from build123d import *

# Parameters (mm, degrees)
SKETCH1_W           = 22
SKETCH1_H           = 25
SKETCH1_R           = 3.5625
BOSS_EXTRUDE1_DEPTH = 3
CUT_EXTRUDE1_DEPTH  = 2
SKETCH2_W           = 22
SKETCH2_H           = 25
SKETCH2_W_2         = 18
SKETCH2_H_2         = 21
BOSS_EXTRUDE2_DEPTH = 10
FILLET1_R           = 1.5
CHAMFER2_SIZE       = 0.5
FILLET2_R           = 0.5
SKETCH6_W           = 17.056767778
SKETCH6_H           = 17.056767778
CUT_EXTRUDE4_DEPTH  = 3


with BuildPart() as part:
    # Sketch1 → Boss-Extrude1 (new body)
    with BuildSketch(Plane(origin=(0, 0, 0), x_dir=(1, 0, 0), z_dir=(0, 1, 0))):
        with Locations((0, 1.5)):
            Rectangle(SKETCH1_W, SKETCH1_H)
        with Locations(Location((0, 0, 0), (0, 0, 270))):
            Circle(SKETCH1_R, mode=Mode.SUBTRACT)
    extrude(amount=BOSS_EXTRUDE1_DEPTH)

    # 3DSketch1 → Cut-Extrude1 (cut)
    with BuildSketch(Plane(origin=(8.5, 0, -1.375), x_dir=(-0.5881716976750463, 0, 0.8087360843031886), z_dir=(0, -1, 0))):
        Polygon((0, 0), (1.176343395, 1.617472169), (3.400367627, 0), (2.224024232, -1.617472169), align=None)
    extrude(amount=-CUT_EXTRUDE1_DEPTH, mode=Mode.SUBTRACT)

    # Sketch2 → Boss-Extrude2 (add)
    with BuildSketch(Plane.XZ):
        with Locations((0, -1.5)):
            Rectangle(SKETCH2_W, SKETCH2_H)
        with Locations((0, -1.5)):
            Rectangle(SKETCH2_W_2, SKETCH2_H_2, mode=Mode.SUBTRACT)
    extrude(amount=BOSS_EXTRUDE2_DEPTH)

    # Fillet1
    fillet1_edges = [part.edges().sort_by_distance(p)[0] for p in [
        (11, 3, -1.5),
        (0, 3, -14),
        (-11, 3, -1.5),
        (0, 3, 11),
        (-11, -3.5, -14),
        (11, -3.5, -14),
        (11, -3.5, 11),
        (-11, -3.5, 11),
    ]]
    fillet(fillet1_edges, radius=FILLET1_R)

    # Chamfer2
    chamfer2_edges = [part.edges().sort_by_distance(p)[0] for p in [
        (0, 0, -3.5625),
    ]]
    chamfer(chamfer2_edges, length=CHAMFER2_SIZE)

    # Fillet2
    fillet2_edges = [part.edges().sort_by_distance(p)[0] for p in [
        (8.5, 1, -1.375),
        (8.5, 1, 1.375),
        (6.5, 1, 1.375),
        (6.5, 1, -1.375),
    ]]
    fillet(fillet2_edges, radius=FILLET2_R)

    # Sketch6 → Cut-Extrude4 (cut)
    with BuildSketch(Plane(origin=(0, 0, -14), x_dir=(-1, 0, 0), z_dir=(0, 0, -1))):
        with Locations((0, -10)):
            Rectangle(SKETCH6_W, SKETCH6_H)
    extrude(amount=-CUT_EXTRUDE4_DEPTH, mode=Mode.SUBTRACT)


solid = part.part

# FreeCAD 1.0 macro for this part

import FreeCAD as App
import Part
import Sketcher

V = App.Vector
Q = App.Units.Quantity


def edges_at(feature, points):
    """Names of the edges that pass closest to the given points."""
    edges = feature.Shape.Edges
    near = lambda p: min(range(len(edges)), key=lambda i: edges[i].distToShape(Part.Vertex(*p))[0])
    return sorted({f"Edge{near(p) + 1}" for p in points})

doc = App.newDocument("Part")
params = doc.addObject("Spreadsheet::Sheet", "Params")
for row, (alias, value) in enumerate([
    ("sketch1_width", "22 mm"),
    ("sketch1_height", "25 mm"),
    ("pad1_length", "3 mm"),
    ("sketch2_width", "2 mm"),
    ("sketch2_height", "2.75 mm"),
    ("pocket1_length", "2 mm"),
    ("sketch3_width", "22 mm"),
    ("sketch3_width2", "18 mm"),
    ("sketch3_height", "25 mm"),
    ("sketch3_height2", "21 mm"),
    ("pad2_length", "10 mm"),
    ("fillet_radius", "1.5 mm"),
    ("chamfer_size", "0.5 mm"),
    ("fillet2_radius", "0.5 mm"),
    ("pocket2_length", "3 mm"),
], start=1):
    params.set(f"A{row}", alias)
    params.set(f"B{row}", "=" + value)
    params.setAlias(f"B{row}", alias)

body = doc.addObject("PartDesign::Body", "Body")

# Sketch on XZ plane
sketch1 = doc.addObject("Sketcher::SketchObject", "Sketch")
body.addObject(sketch1)
sketch1.AttachmentSupport = (doc.XZ_Plane, [""])
sketch1.MapMode = "FlatFace"
sketch1.addGeometry([
    Part.LineSegment(V(-11, -14, 0), V(-11, 11, 0)),  # 0
    Part.LineSegment(V(-11, 11, 0), V(11, 11, 0)),  # 1
    Part.LineSegment(V(11, 11, 0), V(11, -14, 0)),  # 2
    Part.LineSegment(V(11, -14, 0), V(-11, -14, 0)),  # 3
    Part.Circle(V(0, 0, 0), V(0, 0, 1), 3.6),  # 4
], False)
sketch1.addConstraint([
    Sketcher.Constraint("Coincident", 0, 2, 1, 1),
    Sketcher.Constraint("Coincident", 1, 2, 2, 1),
    Sketcher.Constraint("Coincident", 2, 2, 3, 1),
    Sketcher.Constraint("Coincident", 3, 2, 0, 1),
    Sketcher.Constraint("Vertical", 0),
    Sketcher.Constraint("Horizontal", 1),
    Sketcher.Constraint("Vertical", 2),
    Sketcher.Constraint("Horizontal", 3),
    Sketcher.Constraint("Coincident", 4, 3, -1, 1),
    Sketcher.Constraint("DistanceX", 1, 1, 1, 2, Q("22 mm")),
    Sketcher.Constraint("DistanceY", 0, 1, 0, 2, Q("25 mm")),
    Sketcher.Constraint("Diameter", 4, Q("7.125 mm")),
    Sketcher.Constraint("DistanceX", 0, 2, -1, 1, Q("11 mm")),
    Sketcher.Constraint("DistanceY", -1, 1, 0, 2, Q("11 mm")),
])
sketch1.setExpression("Constraints[9]", "Params.sketch1_width")
sketch1.setExpression("Constraints[10]", "Params.sketch1_height")
pad1 = doc.addObject("PartDesign::Pad", "Pad")
body.addObject(pad1)
pad1.Profile = sketch1
pad1.setExpression("Length", "Params.pad1_length")
pad1.Reversed = True

# Sketch on XZ plane
sketch2 = doc.addObject("Sketcher::SketchObject", "Sketch001")
body.addObject(sketch2)
sketch2.AttachmentSupport = (doc.XZ_Plane, [""])
sketch2.MapMode = "FlatFace"
sketch2.addGeometry([
    Part.LineSegment(V(6.5, -1.4, 0), V(8.5, -1.4, 0)),
    Part.LineSegment(V(8.5, -1.4, 0), V(8.5, 1.4, 0)),
    Part.LineSegment(V(8.5, 1.4, 0), V(6.5, 1.4, 0)),
    Part.LineSegment(V(6.5, 1.4, 0), V(6.5, -1.4, 0)),
], False)
sketch2.addConstraint([
    Sketcher.Constraint("Coincident", 0, 2, 1, 1),
    Sketcher.Constraint("Coincident", 1, 2, 2, 1),
    Sketcher.Constraint("Coincident", 2, 2, 3, 1),
    Sketcher.Constraint("Coincident", 3, 2, 0, 1),
    Sketcher.Constraint("Horizontal", 0),
    Sketcher.Constraint("Vertical", 1),
    Sketcher.Constraint("Horizontal", 2),
    Sketcher.Constraint("Vertical", 3),
    Sketcher.Constraint("DistanceX", 0, 1, 0, 2, Q("2 mm")),
    Sketcher.Constraint("DistanceY", 1, 1, 1, 2, Q("2.75 mm")),
    Sketcher.Constraint("DistanceX", -1, 1, 0, 2, Q("8.5 mm")),
    Sketcher.Constraint("DistanceY", 0, 2, -1, 1, Q("1.375 mm")),
])
sketch2.setExpression("Constraints[8]", "Params.sketch2_width")
sketch2.setExpression("Constraints[9]", "Params.sketch2_height")
pocket1 = doc.addObject("PartDesign::Pocket", "Pocket")
body.addObject(pocket1)
pocket1.Profile = sketch2
pocket1.setExpression("Length", "Params.pocket1_length")

# Sketch on XZ plane
sketch3 = doc.addObject("Sketcher::SketchObject", "Sketch002")
body.addObject(sketch3)
sketch3.AttachmentSupport = (doc.XZ_Plane, [""])
sketch3.MapMode = "FlatFace"
sketch3.addGeometry([
    Part.LineSegment(V(-11, 11, 0), V(-11, -14, 0)),  # 0
    Part.LineSegment(V(-11, -14, 0), V(11, -14, 0)),  # 1
    Part.LineSegment(V(11, -14, 0), V(11, 11, 0)),  # 2
    Part.LineSegment(V(11, 11, 0), V(-11, 11, 0)),  # 3
    Part.LineSegment(V(9, -12, 0), V(-9, -12, 0)),  # 4
    Part.LineSegment(V(-9, -12, 0), V(-9, 9, 0)),  # 5
    Part.LineSegment(V(-9, 9, 0), V(9, 9, 0)),  # 6
    Part.LineSegment(V(9, 9, 0), V(9, -12, 0)),  # 7
], False)
sketch3.addConstraint([
    Sketcher.Constraint("Coincident", 0, 2, 1, 1),
    Sketcher.Constraint("Coincident", 1, 2, 2, 1),
    Sketcher.Constraint("Coincident", 2, 2, 3, 1),
    Sketcher.Constraint("Coincident", 3, 2, 0, 1),
    Sketcher.Constraint("Coincident", 4, 2, 5, 1),
    Sketcher.Constraint("Coincident", 5, 2, 6, 1),
    Sketcher.Constraint("Coincident", 6, 2, 7, 1),
    Sketcher.Constraint("Coincident", 7, 2, 4, 1),
    Sketcher.Constraint("Vertical", 0),
    Sketcher.Constraint("Horizontal", 1),
    Sketcher.Constraint("Vertical", 2),
    Sketcher.Constraint("Horizontal", 3),
    Sketcher.Constraint("Horizontal", 4),
    Sketcher.Constraint("Vertical", 5),
    Sketcher.Constraint("Horizontal", 6),
    Sketcher.Constraint("Vertical", 7),
    Sketcher.Constraint("DistanceX", 1, 1, 1, 2, Q("22 mm")),
    Sketcher.Constraint("DistanceX", 4, 2, 4, 1, Q("18 mm")),
    Sketcher.Constraint("DistanceY", 0, 2, 0, 1, Q("25 mm")),
    Sketcher.Constraint("DistanceY", 5, 1, 5, 2, Q("21 mm")),
    Sketcher.Constraint("DistanceX", 0, 2, -1, 1, Q("11 mm")),
    Sketcher.Constraint("DistanceY", 0, 2, -1, 1, Q("14 mm")),
    Sketcher.Constraint("DistanceX", 4, 2, -1, 1, Q("9 mm")),
    Sketcher.Constraint("DistanceY", 4, 2, -1, 1, Q("12 mm")),
])
sketch3.setExpression("Constraints[16]", "Params.sketch3_width")
sketch3.setExpression("Constraints[17]", "Params.sketch3_width2")
sketch3.setExpression("Constraints[18]", "Params.sketch3_height")
sketch3.setExpression("Constraints[19]", "Params.sketch3_height2")
pad2 = doc.addObject("PartDesign::Pad", "Pad001")
body.addObject(pad2)
pad2.Profile = sketch3
pad2.setExpression("Length", "Params.pad2_length")
doc.recompute()

fillet = doc.addObject("PartDesign::Fillet", "Fillet")
body.addObject(fillet)
fillet.Base = (pad2, edges_at(pad2, [
    (11, 3, -1.5),
    (0, 3, -14),
    (-11, 3, -1.5),
    (0, 3, 11),
    (-11, -3.5, -14),
    (11, -3.5, -14),
    (11, -3.5, 11),
    (-11, -3.5, 11),
]))
fillet.setExpression("Radius", "Params.fillet_radius")
doc.recompute()

chamfer = doc.addObject("PartDesign::Chamfer", "Chamfer")
body.addObject(chamfer)
chamfer.Base = (fillet, edges_at(fillet, [(0, 0, -3.562)]))
chamfer.setExpression("Size", "Params.chamfer_size")
doc.recompute()

fillet2 = doc.addObject("PartDesign::Fillet", "Fillet001")
body.addObject(fillet2)
fillet2.Base = (chamfer, edges_at(chamfer, [
    (8.5, 1, -1.375),
    (8.5, 1, 1.375),
    (6.5, 1, 1.375),
    (6.5, 1, -1.375),
]))
fillet2.setExpression("Radius", "Params.fillet2_radius")

# Sketch on XY plane
sketch4 = doc.addObject("Sketcher::SketchObject", "Sketch003")
body.addObject(sketch4)
sketch4.AttachmentSupport = (doc.XY_Plane, [""])
sketch4.MapMode = "FlatFace"
sketch4.AttachmentOffset = App.Placement(V(0, 0, -14), App.Rotation())
sketch4.addGeometry([
    Part.LineSegment(V(9, -1, 0), V(9, -19, 0)),
    Part.LineSegment(V(9, -19, 0), V(-9, -19, 0)),
    Part.LineSegment(V(-9, -19, 0), V(-9, -1, 0)),
    Part.LineSegment(V(-9, -1, 0), V(9, -1, 0)),
], False)
sketch4.addConstraint([
    Sketcher.Constraint("Coincident", 0, 2, 1, 1),
    Sketcher.Constraint("Coincident", 1, 2, 2, 1),
    Sketcher.Constraint("Coincident", 2, 2, 3, 1),
    Sketcher.Constraint("Coincident", 3, 2, 0, 1),
    Sketcher.Constraint("Vertical", 0),
    Sketcher.Constraint("Horizontal", 1),
    Sketcher.Constraint("Vertical", 2),
    Sketcher.Constraint("Horizontal", 3),
    Sketcher.Constraint("Equal", 3, 0),
    Sketcher.Constraint("DistanceX", 1, 2, 1, 1, Q("17.056768 mm")),
    Sketcher.Constraint("DistanceX", -1, 1, 0, 2, Q("8.528384 mm")),
    Sketcher.Constraint("DistanceY", 0, 2, -1, 1, Q("18.528384 mm")),
])
pocket2 = doc.addObject("PartDesign::Pocket", "Pocket001")
body.addObject(pocket2)
pocket2.Profile = sketch4
pocket2.setExpression("Length", "Params.pocket2_length")
pocket2.Reversed = True

doc.recompute()
